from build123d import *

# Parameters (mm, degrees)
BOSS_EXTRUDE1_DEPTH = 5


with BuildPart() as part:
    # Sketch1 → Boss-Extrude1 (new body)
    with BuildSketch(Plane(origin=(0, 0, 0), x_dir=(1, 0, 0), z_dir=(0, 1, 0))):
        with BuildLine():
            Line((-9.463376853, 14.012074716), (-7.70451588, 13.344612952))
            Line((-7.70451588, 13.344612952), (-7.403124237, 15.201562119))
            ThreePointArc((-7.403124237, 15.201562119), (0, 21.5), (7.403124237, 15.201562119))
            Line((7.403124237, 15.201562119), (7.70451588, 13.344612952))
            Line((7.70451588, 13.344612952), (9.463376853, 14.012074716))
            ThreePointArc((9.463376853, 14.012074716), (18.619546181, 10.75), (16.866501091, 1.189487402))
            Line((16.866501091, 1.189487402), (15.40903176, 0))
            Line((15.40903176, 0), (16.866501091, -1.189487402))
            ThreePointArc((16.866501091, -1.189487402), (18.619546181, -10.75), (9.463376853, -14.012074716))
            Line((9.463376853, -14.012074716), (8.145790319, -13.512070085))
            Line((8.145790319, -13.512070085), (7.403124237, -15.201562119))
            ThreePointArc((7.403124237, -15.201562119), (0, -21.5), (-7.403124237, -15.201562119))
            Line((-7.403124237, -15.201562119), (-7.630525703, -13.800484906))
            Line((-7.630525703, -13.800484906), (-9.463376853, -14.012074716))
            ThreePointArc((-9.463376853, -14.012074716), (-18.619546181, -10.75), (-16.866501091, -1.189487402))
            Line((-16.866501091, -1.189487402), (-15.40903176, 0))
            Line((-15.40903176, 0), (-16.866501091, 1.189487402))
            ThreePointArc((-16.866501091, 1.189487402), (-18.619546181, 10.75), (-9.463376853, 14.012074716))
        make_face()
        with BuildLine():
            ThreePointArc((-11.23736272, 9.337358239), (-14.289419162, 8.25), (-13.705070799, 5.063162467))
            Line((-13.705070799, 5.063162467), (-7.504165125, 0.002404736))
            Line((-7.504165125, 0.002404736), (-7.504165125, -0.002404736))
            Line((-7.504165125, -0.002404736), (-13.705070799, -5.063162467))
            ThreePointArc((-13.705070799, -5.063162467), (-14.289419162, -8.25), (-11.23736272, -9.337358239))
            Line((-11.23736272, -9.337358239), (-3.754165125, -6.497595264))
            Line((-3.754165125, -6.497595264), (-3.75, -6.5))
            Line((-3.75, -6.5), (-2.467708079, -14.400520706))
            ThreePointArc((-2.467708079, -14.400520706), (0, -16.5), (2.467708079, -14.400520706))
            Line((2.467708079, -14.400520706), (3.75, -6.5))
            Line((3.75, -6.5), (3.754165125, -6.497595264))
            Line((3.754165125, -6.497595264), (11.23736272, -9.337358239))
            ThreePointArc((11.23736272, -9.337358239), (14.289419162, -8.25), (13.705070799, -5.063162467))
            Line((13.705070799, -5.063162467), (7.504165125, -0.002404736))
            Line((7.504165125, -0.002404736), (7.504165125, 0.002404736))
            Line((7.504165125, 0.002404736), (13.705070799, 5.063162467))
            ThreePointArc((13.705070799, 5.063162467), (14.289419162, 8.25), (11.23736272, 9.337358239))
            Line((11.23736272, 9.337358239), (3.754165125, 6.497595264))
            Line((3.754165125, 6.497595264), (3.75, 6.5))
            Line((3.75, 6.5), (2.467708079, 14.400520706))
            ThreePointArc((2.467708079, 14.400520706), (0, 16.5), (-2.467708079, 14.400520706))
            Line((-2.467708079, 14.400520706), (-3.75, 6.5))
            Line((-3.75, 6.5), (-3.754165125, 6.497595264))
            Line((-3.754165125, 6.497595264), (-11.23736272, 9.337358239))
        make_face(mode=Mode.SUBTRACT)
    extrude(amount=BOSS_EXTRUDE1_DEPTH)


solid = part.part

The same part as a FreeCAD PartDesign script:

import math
import FreeCAD as App
import Part
import Sketcher
from FreeCAD import Vector

doc = App.newDocument("Part")
body = doc.addObject("PartDesign::Body", "Body")

# Sketch on XZ plane
sketch1 = body.newObject("Sketcher::SketchObject", "Sketch")
sketch1.AttachmentSupport = (doc.getObject("XZ_Plane"), [""])
sketch1.MapMode = "FlatFace"
sketch1.addGeometry([
    Part.LineSegment(Vector(-7.704516, -13.344613, 0), Vector(-9.463377, -14.012075, 0)),  # 0
    Part.ArcOfCircle(Part.Circle(Vector(-12.124356, -7, 0), Vector(0, 0, 1), 7.5), math.radians(129.218986), math.radians(290.781014)),  # 1
    Part.LineSegment(Vector(-16.866501, -1.189487, 0), Vector(-15.409032, 0, 0)),  # 2
    Part.LineSegment(Vector(-15.409032, 0, 0), Vector(-16.866501, 1.189487, 0)),  # 3
    Part.ArcOfCircle(Part.Circle(Vector(-12.124356, 7, 0), Vector(0, 0, 1), 7.5), math.radians(69.218986), math.radians(230.781014)),  # 4
    Part.LineSegment(Vector(-9.463377, 14.012075, 0), Vector(-7.630526, 13.800485, 0)),  # 5
    Part.LineSegment(Vector(-7.630526, 13.800485, 0), Vector(-7.403124, 15.201562, 0)),  # 6
    Part.ArcOfCircle(Part.Circle(Vector(0, 14, 0), Vector(0, 0, 1), 7.5), math.radians(9.218986), math.radians(170.781014)),  # 7
    Part.LineSegment(Vector(7.403124, 15.201562, 0), Vector(8.14579, 13.51207, 0)),  # 8
    Part.LineSegment(Vector(8.14579, 13.51207, 0), Vector(9.463377, 14.012075, 0)),  # 9
    Part.ArcOfCircle(Part.Circle(Vector(12.124356, 7, 0), Vector(0, 0, 1), 7.5), math.radians(-50.781014), math.radians(110.781014)),  # 10
    Part.LineSegment(Vector(16.866501, 1.189487, 0), Vector(15.409032, 0, 0)),  # 11
    Part.LineSegment(Vector(15.409032, 0, 0), Vector(16.866501, -1.189487, 0)),  # 12
    Part.ArcOfCircle(Part.Circle(Vector(12.124356, -7, 0), Vector(0, 0, 1), 7.5), math.radians(-110.781014), math.radians(50.781014)),  # 13
    Part.LineSegment(Vector(9.463377, -14.012075, 0), Vector(7.704516, -13.344613, 0)),  # 14
    Part.LineSegment(Vector(7.704516, -13.344613, 0), Vector(7.403124, -15.201562, 0)),  # 15
    Part.ArcOfCircle(Part.Circle(Vector(0, -14, 0), Vector(0, 0, 1), 7.5), math.radians(-170.781014), math.radians(-9.218986)),  # 16
    Part.LineSegment(Vector(-7.403124, -15.201562, 0), Vector(-7.704516, -13.344613, 0)),  # 17
    Part.LineSegment(Vector(-11.237363, -9.337358, 0), Vector(-3.754165, -6.497595, 0)),  # 18
    Part.LineSegment(Vector(-3.754165, -6.497595, 0), Vector(-3.75, -6.5, 0)),  # 19
    Part.LineSegment(Vector(-3.75, -6.5, 0), Vector(-2.467708, -14.400521, 0)),  # 20
    Part.ArcOfCircle(Part.Circle(Vector(0, -14, 0), Vector(0, 0, 1), 2.5), math.radians(-170.781014), math.radians(-9.218986)),  # 21
    Part.LineSegment(Vector(2.467708, -14.400521, 0), Vector(3.75, -6.5, 0)),  # 22
    Part.LineSegment(Vector(3.75, -6.5, 0), Vector(3.754165, -6.497595, 0)),  # 23
    Part.LineSegment(Vector(3.754165, -6.497595, 0), Vector(11.237363, -9.337358, 0)),  # 24
    Part.ArcOfCircle(Part.Circle(Vector(12.124356, -7, 0), Vector(0, 0, 1), 2.5), math.radians(-110.781014), math.radians(50.781014)),  # 25
    Part.LineSegment(Vector(13.705071, -5.063162, 0), Vector(7.504165, -0.002405, 0)),  # 26
    Part.LineSegment(Vector(7.504165, -0.002405, 0), Vector(7.504165, 0.002405, 0)),  # 27
    Part.LineSegment(Vector(7.504165, 0.002405, 0), Vector(13.705071, 5.063162, 0)),  # 28
    Part.ArcOfCircle(Part.Circle(Vector(12.124356, 7, 0), Vector(0, 0, 1), 2.5), math.radians(-50.781014), math.radians(110.781014)),  # 29
    Part.LineSegment(Vector(11.237363, 9.337358, 0), Vector(3.754165, 6.497595, 0)),  # 30
    Part.LineSegment(Vector(3.754165, 6.497595, 0), Vector(3.75, 6.5, 0)),  # 31
    Part.LineSegment(Vector(3.75, 6.5, 0), Vector(2.467708, 14.400521, 0)),  # 32
    Part.ArcOfCircle(Part.Circle(Vector(0, 14, 0), Vector(0, 0, 1), 2.5), math.radians(9.218986), math.radians(170.781014)),  # 33
    Part.LineSegment(Vector(-2.467708, 14.400521, 0), Vector(-3.75, 6.5, 0)),  # 34
    Part.LineSegment(Vector(-3.75, 6.5, 0), Vector(-3.754165, 6.497595, 0)),  # 35
    Part.LineSegment(Vector(-3.754165, 6.497595, 0), Vector(-11.237363, 9.337358, 0)),  # 36
    Part.ArcOfCircle(Part.Circle(Vector(-12.124356, 7, 0), Vector(0, 0, 1), 2.5), math.radians(69.218986), math.radians(230.781014)),  # 37
    Part.LineSegment(Vector(-13.705071, 5.063162, 0), Vector(-7.504165, 0.002405, 0)),  # 38
    Part.LineSegment(Vector(-7.504165, 0.002405, 0), Vector(-7.504165, -0.002405, 0)),  # 39
    Part.LineSegment(Vector(-7.504165, -0.002405, 0), Vector(-13.705071, -5.063162, 0)),  # 40
    Part.ArcOfCircle(Part.Circle(Vector(-12.124356, -7, 0), Vector(0, 0, 1), 2.5), math.radians(129.218986), math.radians(290.781014)),  # 41
], False)
sketch1.addConstraint([
    Sketcher.Constraint("Tangent", 0, 2, 1, 2),
    Sketcher.Constraint("Tangent", 1, 1, 2, 1),
    Sketcher.Constraint("Coincident", 2, 2, 3, 1),
    Sketcher.Constraint("Tangent", 3, 2, 4, 2),
    Sketcher.Constraint("Coincident", 4, 1, 5, 1),
    Sketcher.Constraint("Coincident", 5, 2, 6, 1),
    Sketcher.Constraint("Tangent", 6, 2, 7, 2),
    Sketcher.Constraint("Coincident", 7, 1, 8, 1),
    Sketcher.Constraint("Coincident", 8, 2, 9, 1),
    Sketcher.Constraint("Tangent", 9, 2, 10, 2),
    Sketcher.Constraint("Tangent", 10, 1, 11, 1),
    Sketcher.Constraint("Coincident", 11, 2, 12, 1),
    Sketcher.Constraint("Tangent", 12, 2, 13, 2),
    Sketcher.Constraint("Tangent", 13, 1, 14, 1),
    Sketcher.Constraint("Coincident", 14, 2, 15, 1),
    Sketcher.Constraint("Tangent", 15, 2, 16, 2),
    Sketcher.Constraint("Tangent", 16, 1, 17, 1),
    Sketcher.Constraint("Coincident", 17, 2, 0, 1),
    Sketcher.Constraint("Coincident", 18, 2, 19, 1),
    Sketcher.Constraint("Coincident", 19, 2, 20, 1),
    Sketcher.Constraint("Tangent", 20, 2, 21, 1),
    Sketcher.Constraint("Tangent", 21, 2, 22, 1),
    Sketcher.Constraint("Coincident", 22, 2, 23, 1),
    Sketcher.Constraint("Coincident", 23, 2, 24, 1),
    Sketcher.Constraint("Tangent", 24, 2, 25, 1),
    Sketcher.Constraint("Tangent", 25, 2, 26, 1),
    Sketcher.Constraint("Coincident", 26, 2, 27, 1),
    Sketcher.Constraint("Coincident", 27, 2, 28, 1),
    Sketcher.Constraint("Tangent", 28, 2, 29, 1),
    Sketcher.Constraint("Tangent", 29, 2, 30, 1),
    Sketcher.Constraint("Coincident", 30, 2, 31, 1),
    Sketcher.Constraint("Coincident", 31, 2, 32, 1),
    Sketcher.Constraint("Tangent", 32, 2, 33, 1),
    Sketcher.Constraint("Tangent", 33, 2, 34, 1),
    Sketcher.Constraint("Coincident", 34, 2, 35, 1),
    Sketcher.Constraint("Coincident", 35, 2, 36, 1),
    Sketcher.Constraint("Tangent", 36, 2, 37, 1),
    Sketcher.Constraint("Tangent", 37, 2, 38, 1),
    Sketcher.Constraint("Coincident", 38, 2, 39, 1),
    Sketcher.Constraint("Coincident", 39, 2, 40, 1),
    Sketcher.Constraint("Tangent", 40, 2, 41, 1),
    Sketcher.Constraint("Tangent", 41, 2, 18, 1),
    Sketcher.Constraint("Vertical", 27),
    Sketcher.Constraint("Vertical", 39),
    Sketcher.Constraint("Coincident", 21, 3, 16, 3),
    Sketcher.Constraint("Coincident", 25, 3, 13, 3),
    Sketcher.Constraint("Coincident", 29, 3, 10, 3),
    Sketcher.Constraint("Coincident", 33, 3, 7, 3),
    Sketcher.Constraint("Coincident", 37, 3, 4, 3),
    Sketcher.Constraint("Coincident", 41, 3, 1, 3),
    Sketcher.Constraint("Equal", 1, 4),
    Sketcher.Constraint("Equal", 4, 7),
    Sketcher.Constraint("Equal", 7, 10),
    Sketcher.Constraint("Equal", 10, 13),
    Sketcher.Constraint("Equal", 13, 16),
    Sketcher.Constraint("Equal", 21, 25),
    Sketcher.Constraint("Equal", 25, 29),
    Sketcher.Constraint("Equal", 29, 33),
    Sketcher.Constraint("Equal", 33, 37),
    Sketcher.Constraint("Equal", 37, 41),
    Sketcher.Constraint("Symmetric", 1, 3, 10, 3, -1, 1),
    Sketcher.Constraint("Symmetric", 4, 3, 13, 3, -1, 1),
    Sketcher.Constraint("Symmetric", 7, 3, 16, 3, -1, 1),
    Sketcher.Constraint("Symmetric", 2, 2, 11, 2, -1, 1),
    Sketcher.Constraint("Symmetric", 18, 2, 30, 2, -1, 1),
    Sketcher.Constraint("Symmetric", 19, 2, 31, 2, -1, 1),
    Sketcher.Constraint("Symmetric", 22, 2, 34, 2, -1, 1),
    Sketcher.Constraint("Symmetric", 23, 2, 35, 2, -1, 1),
    Sketcher.Constraint("Symmetric", 26, 2, 38, 2, -1, 1),
    Sketcher.Constraint("Symmetric", 4, 3, 10, 3, -2),
    Sketcher.Constraint("Symmetric", 6, 2, 7, 1, -2),
    Sketcher.Constraint("Symmetric", 14, 2, 17, 2, -2),
    Sketcher.Constraint("Symmetric", 19, 2, 22, 2, -2),
    Sketcher.Constraint("Symmetric", 18, 2, 23, 2, -2),
    Sketcher.Constraint("PointOnObject", 2, 2, -1),
    Sketcher.Constraint("Parallel", 0, 9),
    Sketcher.Constraint("Parallel", 6, 15),
    Sketcher.Constraint("Parallel", 9, 18),
    Sketcher.Constraint("Parallel", 17, 20),
    Sketcher.Constraint("Parallel", 12, 26),
    Sketcher.Constraint("Parallel", 11, 28),
    Sketcher.Constraint("Parallel", 28, 40),
    Sketcher.Constraint("Horizontal", 4, 1, 9, 2),
    Sketcher.Constraint("Equal", 0, 2),
    Sketcher.Constraint("Equal", 14, 15),
    Sketcher.Constraint("Equal", 18, 20),
    Sketcher.Constraint("Equal", 24, 26),
    Sketcher.Constraint("Radius", 1, 7.5),
    Sketcher.Constraint("Radius", 21, 2.5),
    Sketcher.Constraint("DistanceY", 1, 3, -1, 1, 7.0),
    Sketcher.Constraint("DistanceY", -1, 1, 7, 3, 14.0),
    Sketcher.Constraint("DistanceY", 19, 2, -1, 1, 6.5),
    Sketcher.Constraint("DistanceX", 19, 2, 22, 2, 7.5),
    Sketcher.Constraint("DistanceY", 23, 2, 27, 2, 6.5),
    Sketcher.Constraint("DistanceX", 5, 2, 6, 2, 0.227401),
    Sketcher.Constraint("Distance", 9, 1.409269),
])
pad1 = body.newObject("PartDesign::Pad", "Pad")
pad1.Profile = sketch1
pad1.Length = 5
pad1.Reversed = True

doc.recompute()
